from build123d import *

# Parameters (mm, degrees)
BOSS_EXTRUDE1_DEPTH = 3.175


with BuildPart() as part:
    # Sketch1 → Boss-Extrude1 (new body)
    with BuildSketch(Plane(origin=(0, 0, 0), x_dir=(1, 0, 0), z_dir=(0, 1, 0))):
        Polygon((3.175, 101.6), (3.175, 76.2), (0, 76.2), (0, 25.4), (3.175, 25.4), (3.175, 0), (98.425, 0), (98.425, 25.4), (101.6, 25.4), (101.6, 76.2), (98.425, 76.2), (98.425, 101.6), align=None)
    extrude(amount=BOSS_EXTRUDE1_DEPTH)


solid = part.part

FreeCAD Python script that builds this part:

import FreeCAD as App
import Part
import Sketcher

V = App.Vector
Q = App.Units.Quantity

doc = App.newDocument("Part")
params = doc.addObject("Spreadsheet::Sheet", "Params")
for row, (alias, value) in enumerate([
    ("sketch1_height", "1 in"),
    ("sketch1_height2", "2 in"),
    ("sketch1_width", "3.75 in"),
    ("pad1_length", "0.125 in"),
], start=1):
    params.set(f"A{row}", alias)
    params.set(f"B{row}", "=" + value)
    params.setAlias(f"B{row}", alias)

body = doc.addObject("PartDesign::Body", "Body")

# Sketch on XZ plane
sketch1 = body.newObject("Sketcher::SketchObject", "Sketch")
sketch1.AttachmentSupport = (doc.getObject("XZ_Plane"), [""])
sketch1.MapMode = "FlatFace"
sketch1.addGeometry([
    Part.LineSegment(V(3.2, -101.6, 0), V(3.2, -76.2, 0)),  # 0
    Part.LineSegment(V(3.2, -76.2, 0), V(0, -76.2, 0)),  # 1
    Part.LineSegment(V(0, -76.2, 0), V(0, -25.4, 0)),  # 2
    Part.LineSegment(V(0, -25.4, 0), V(3.2, -25.4, 0)),  # 3
    Part.LineSegment(V(3.2, -25.4, 0), V(3.2, 0, 0)),  # 4
    Part.LineSegment(V(3.2, 0, 0), V(98.4, 0, 0)),  # 5
    Part.LineSegment(V(98.4, 0, 0), V(98.4, -25.4, 0)),  # 6
    Part.LineSegment(V(98.4, -25.4, 0), V(101.6, -25.4, 0)),  # 7
    Part.LineSegment(V(101.6, -25.4, 0), V(101.6, -76.2, 0)),  # 8
    Part.LineSegment(V(101.6, -76.2, 0), V(98.4, -76.2, 0)),  # 9
    Part.LineSegment(V(98.4, -76.2, 0), V(98.4, -101.6, 0)),  # 10
    Part.LineSegment(V(98.4, -101.6, 0), V(3.2, -101.6, 0)),  # 11
], False)
sketch1.addConstraint([
    Sketcher.Constraint("Coincident", 0, 2, 1, 1),
    Sketcher.Constraint("Coincident", 1, 2, 2, 1),
    Sketcher.Constraint("Coincident", 2, 2, 3, 1),
    Sketcher.Constraint("Coincident", 3, 2, 4, 1),
    Sketcher.Constraint("Coincident", 4, 2, 5, 1),
    Sketcher.Constraint("Coincident", 5, 2, 6, 1),
    Sketcher.Constraint("Coincident", 6, 2, 7, 1),
    Sketcher.Constraint("Coincident", 7, 2, 8, 1),
    Sketcher.Constraint("Coincident", 8, 2, 9, 1),
    Sketcher.Constraint("Coincident", 9, 2, 10, 1),
    Sketcher.Constraint("Coincident", 10, 2, 11, 1),
    Sketcher.Constraint("Coincident", 11, 2, 0, 1),
    Sketcher.Constraint("Vertical", 0),
    Sketcher.Constraint("Horizontal", 1),
    Sketcher.Constraint("Vertical", 2),
    Sketcher.Constraint("Horizontal", 3),
    Sketcher.Constraint("Vertical", 4),
    Sketcher.Constraint("Horizontal", 5),
    Sketcher.Constraint("Vertical", 6),
    Sketcher.Constraint("Horizontal", 7),
    Sketcher.Constraint("Vertical", 8),
    Sketcher.Constraint("Horizontal", 9),
    Sketcher.Constraint("Vertical", 10),
    Sketcher.Constraint("Horizontal", 11),
    Sketcher.Constraint("PointOnObject", 1, 2, -2),
    Sketcher.Constraint("PointOnObject", 4, 2, -1),
    Sketcher.Constraint("Horizontal", 3, 2, 6, 2),
    Sketcher.Constraint("Horizontal", 1, 2, 8, 2),
    Sketcher.Constraint("Vertical", 0, 2, 3, 2),
    Sketcher.Constraint("Vertical", 6, 2, 9, 2),
    Sketcher.Constraint("Equal", 3, 7),
    Sketcher.Constraint("Equal", 0, 4),
    Sketcher.Constraint("DistanceY", 0, 1, 0, 2, Q("1 in")),
    Sketcher.Constraint("DistanceY", 2, 1, 2, 2, Q("2 in")),
    Sketcher.Constraint("DistanceX", -1, 1, 7, 2, Q("4 in")),
    Sketcher.Constraint("DistanceX", 5, 1, 5, 2, Q("3.75 in")),
])
sketch1.setExpression("Constraints[32]", "Params.sketch1_height")
sketch1.setExpression("Constraints[33]", "Params.sketch1_height2")
sketch1.setExpression("Constraints[35]", "Params.sketch1_width")
pad1 = body.newObject("PartDesign::Pad", "Pad")
pad1.Profile = sketch1
pad1.setExpression("Length", "Params.pad1_length")
pad1.Reversed = True

doc.recompute()
